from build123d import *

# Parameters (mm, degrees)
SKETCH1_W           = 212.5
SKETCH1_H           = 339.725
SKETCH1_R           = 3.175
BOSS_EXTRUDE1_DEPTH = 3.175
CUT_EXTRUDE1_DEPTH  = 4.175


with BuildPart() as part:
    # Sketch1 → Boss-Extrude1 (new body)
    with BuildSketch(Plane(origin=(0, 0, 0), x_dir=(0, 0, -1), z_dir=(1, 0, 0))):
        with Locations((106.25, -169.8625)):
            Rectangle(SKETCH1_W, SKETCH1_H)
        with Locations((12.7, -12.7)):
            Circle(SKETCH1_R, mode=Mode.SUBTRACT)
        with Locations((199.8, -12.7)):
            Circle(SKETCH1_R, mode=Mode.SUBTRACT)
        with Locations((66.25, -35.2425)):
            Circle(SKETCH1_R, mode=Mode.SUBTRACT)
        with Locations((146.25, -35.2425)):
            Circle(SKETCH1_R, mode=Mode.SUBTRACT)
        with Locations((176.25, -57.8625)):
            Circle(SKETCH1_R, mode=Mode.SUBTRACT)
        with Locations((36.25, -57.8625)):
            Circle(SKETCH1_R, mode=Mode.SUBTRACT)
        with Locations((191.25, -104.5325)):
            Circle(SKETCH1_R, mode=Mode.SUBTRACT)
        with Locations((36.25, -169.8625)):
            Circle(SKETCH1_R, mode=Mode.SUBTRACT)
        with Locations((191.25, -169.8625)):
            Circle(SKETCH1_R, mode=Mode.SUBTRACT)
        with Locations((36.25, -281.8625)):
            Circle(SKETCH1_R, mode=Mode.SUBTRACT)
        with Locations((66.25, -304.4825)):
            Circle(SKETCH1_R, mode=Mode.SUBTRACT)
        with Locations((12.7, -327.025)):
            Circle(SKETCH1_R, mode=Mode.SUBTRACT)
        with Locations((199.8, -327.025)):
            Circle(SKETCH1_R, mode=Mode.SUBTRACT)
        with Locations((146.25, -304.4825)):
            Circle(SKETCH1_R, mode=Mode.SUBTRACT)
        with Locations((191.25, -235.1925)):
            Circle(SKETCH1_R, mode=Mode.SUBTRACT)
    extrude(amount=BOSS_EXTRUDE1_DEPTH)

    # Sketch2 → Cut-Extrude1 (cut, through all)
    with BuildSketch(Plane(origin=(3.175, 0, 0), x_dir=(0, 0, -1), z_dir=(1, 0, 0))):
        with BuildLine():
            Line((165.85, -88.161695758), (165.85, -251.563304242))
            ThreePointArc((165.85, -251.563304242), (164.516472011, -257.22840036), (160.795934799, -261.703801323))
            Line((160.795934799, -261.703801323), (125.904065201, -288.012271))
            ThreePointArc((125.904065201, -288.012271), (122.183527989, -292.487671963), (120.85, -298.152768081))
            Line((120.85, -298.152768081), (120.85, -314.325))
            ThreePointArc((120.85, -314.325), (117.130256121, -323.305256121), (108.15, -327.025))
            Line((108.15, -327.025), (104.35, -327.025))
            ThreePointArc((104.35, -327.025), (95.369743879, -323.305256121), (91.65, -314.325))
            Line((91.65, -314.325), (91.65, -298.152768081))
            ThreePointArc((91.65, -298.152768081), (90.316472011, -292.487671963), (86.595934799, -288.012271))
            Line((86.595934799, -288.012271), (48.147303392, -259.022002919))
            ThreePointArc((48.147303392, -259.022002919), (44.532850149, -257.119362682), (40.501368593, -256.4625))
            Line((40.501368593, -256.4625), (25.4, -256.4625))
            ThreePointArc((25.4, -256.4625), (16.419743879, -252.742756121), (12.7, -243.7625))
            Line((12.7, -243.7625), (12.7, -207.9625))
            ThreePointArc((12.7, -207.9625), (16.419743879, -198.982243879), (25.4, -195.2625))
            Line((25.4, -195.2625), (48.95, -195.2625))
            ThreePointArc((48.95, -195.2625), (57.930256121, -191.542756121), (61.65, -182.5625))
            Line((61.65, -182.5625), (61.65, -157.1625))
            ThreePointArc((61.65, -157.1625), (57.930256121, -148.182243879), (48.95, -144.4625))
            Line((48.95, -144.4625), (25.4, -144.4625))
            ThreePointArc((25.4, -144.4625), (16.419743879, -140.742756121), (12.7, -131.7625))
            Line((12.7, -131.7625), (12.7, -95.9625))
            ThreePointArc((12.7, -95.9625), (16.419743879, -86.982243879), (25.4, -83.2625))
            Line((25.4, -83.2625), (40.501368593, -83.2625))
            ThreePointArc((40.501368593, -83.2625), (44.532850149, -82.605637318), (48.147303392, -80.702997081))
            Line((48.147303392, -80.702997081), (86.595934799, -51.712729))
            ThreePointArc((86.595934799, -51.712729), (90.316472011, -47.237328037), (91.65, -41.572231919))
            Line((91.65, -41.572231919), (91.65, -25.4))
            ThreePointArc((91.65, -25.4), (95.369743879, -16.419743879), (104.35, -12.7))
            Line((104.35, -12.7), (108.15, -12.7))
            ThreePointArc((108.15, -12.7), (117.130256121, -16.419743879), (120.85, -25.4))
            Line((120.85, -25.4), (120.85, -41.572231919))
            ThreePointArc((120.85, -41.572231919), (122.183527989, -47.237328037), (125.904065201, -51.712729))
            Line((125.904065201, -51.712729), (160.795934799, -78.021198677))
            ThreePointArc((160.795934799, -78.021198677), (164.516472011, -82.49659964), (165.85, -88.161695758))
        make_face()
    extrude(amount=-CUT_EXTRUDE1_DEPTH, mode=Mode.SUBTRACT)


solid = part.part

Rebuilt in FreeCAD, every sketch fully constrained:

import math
import FreeCAD as App
import Part
import Sketcher
from FreeCAD import Vector
Q = App.Units.Quantity

doc = App.newDocument("Part")
body = doc.addObject("PartDesign::Body", "Body")

# Sketch on YZ plane
sketch1 = doc.addObject("Sketcher::SketchObject", "Sketch")
body.addObject(sketch1)
sketch1.AttachmentSupport = (doc.YZ_Plane, [""])
sketch1.MapMode = "FlatFace"
sketch1.addGeometry(Part.LineSegment(Vector(0, 0, 0), Vector(-339.7, 0, 0)), False)
sketch1.addGeometry(Part.LineSegment(Vector(-339.7, 0, 0), Vector(-339.7, -212.5, 0)), False)
sketch1.addGeometry(Part.LineSegment(Vector(-339.7, -212.5, 0), Vector(0, -212.5, 0)), False)
sketch1.addGeometry(Part.LineSegment(Vector(0, -212.5, 0), Vector(0, 0, 0)), False)
sketch1.addGeometry(Part.Circle(Vector(-327, -12.7, 0), Vector(0, 0, 1), 3.2), False)
sketch1.addGeometry(Part.Circle(Vector(-281.9, -36.2, 0), Vector(0, 0, 1), 3.2), False)
sketch1.addGeometry(Part.Circle(Vector(-304.5, -66.2, 0), Vector(0, 0, 1), 3.2), False)
sketch1.addGeometry(Part.Circle(Vector(-169.9, -36.2, 0), Vector(0, 0, 1), 3.2), False)
sketch1.addGeometry(Part.Circle(Vector(-304.5, -146.2, 0), Vector(0, 0, 1), 3.2), False)
sketch1.addGeometry(Part.Circle(Vector(-327, -199.8, 0), Vector(0, 0, 1), 3.2), False)
sketch1.addGeometry(Part.Circle(Vector(-235.2, -191.2, 0), Vector(0, 0, 1), 3.2), False)
sketch1.addGeometry(Part.Circle(Vector(-169.9, -191.2, 0), Vector(0, 0, 1), 3.2), False)
sketch1.addGeometry(Part.Circle(Vector(-57.9, -36.2, 0), Vector(0, 0, 1), 3.2), False)
sketch1.addGeometry(Part.Circle(Vector(-12.7, -12.7, 0), Vector(0, 0, 1), 3.2), False)
sketch1.addGeometry(Part.Circle(Vector(-35.2, -66.2, 0), Vector(0, 0, 1), 3.2), False)
sketch1.addGeometry(Part.Circle(Vector(-104.5, -191.2, 0), Vector(0, 0, 1), 3.2), False)
sketch1.addGeometry(Part.Circle(Vector(-35.2, -146.2, 0), Vector(0, 0, 1), 3.2), False)
sketch1.addGeometry(Part.Circle(Vector(-57.9, -176.2, 0), Vector(0, 0, 1), 3.2), False)
sketch1.addGeometry(Part.Circle(Vector(-12.7, -199.8, 0), Vector(0, 0, 1), 3.2), False)
sketch1.addConstraint(Sketcher.Constraint("Coincident", 0, 2, 1, 1))
sketch1.addConstraint(Sketcher.Constraint("Coincident", 1, 2, 2, 1))
sketch1.addConstraint(Sketcher.Constraint("Coincident", 2, 2, 3, 1))
sketch1.addConstraint(Sketcher.Constraint("Coincident", 3, 2, 0, 1))
sketch1.addConstraint(Sketcher.Constraint("Horizontal", 0))
sketch1.addConstraint(Sketcher.Constraint("Vertical", 1))
sketch1.addConstraint(Sketcher.Constraint("Horizontal", 2))
sketch1.addConstraint(Sketcher.Constraint("Vertical", 3))
sketch1.addConstraint(Sketcher.Constraint("Coincident", 3, 2, -1, 1))
sketch1.addConstraint(Sketcher.Constraint("Equal", 4, 5))
sketch1.addConstraint(Sketcher.Constraint("Equal", 5, 6))
sketch1.addConstraint(Sketcher.Constraint("Equal", 6, 7))
sketch1.addConstraint(Sketcher.Constraint("Equal", 7, 8))
sketch1.addConstraint(Sketcher.Constraint("Equal", 8, 9))
sketch1.addConstraint(Sketcher.Constraint("Equal", 9, 10))
sketch1.addConstraint(Sketcher.Constraint("Equal", 10, 11))
sketch1.addConstraint(Sketcher.Constraint("Equal", 11, 12))
sketch1.addConstraint(Sketcher.Constraint("Equal", 12, 13))
sketch1.addConstraint(Sketcher.Constraint("Equal", 13, 14))
sketch1.addConstraint(Sketcher.Constraint("Equal", 14, 15))
sketch1.addConstraint(Sketcher.Constraint("Equal", 15, 16))
sketch1.addConstraint(Sketcher.Constraint("Equal", 16, 17))
sketch1.addConstraint(Sketcher.Constraint("Equal", 17, 18))
sketch1.addConstraint(Sketcher.Constraint("Horizontal", 5, 3, 7, 3))
sketch1.addConstraint(Sketcher.Constraint("Horizontal", 10, 3, 11, 3))
sketch1.addConstraint(Sketcher.Constraint("Horizontal", 7, 3, 12, 3))
sketch1.addConstraint(Sketcher.Constraint("Horizontal", 4, 3, 13, 3))
sketch1.addConstraint(Sketcher.Constraint("Horizontal", 6, 3, 14, 3))
sketch1.addConstraint(Sketcher.Constraint("Horizontal", 11, 3, 15, 3))
sketch1.addConstraint(Sketcher.Constraint("Horizontal", 8, 3, 16, 3))
sketch1.addConstraint(Sketcher.Constraint("Horizontal", 9, 3, 18, 3))
sketch1.addConstraint(Sketcher.Constraint("Vertical", 6, 3, 8, 3))
sketch1.addConstraint(Sketcher.Constraint("Vertical", 4, 3, 9, 3))
sketch1.addConstraint(Sketcher.Constraint("Vertical", 7, 3, 11, 3))
sketch1.addConstraint(Sketcher.Constraint("Vertical", 14, 3, 16, 3))
sketch1.addConstraint(Sketcher.Constraint("Vertical", 12, 3, 17, 3))
sketch1.addConstraint(Sketcher.Constraint("Vertical", 13, 3, 18, 3))
sketch1.addConstraint(Sketcher.Constraint("Diameter", 4, Q("0.25 in")))
sketch1.addConstraint(Sketcher.Constraint("DistanceY", 4, 3, -1, 1, Q("0.5 in")))
sketch1.addConstraint(Sketcher.Constraint("DistanceX", 13, 3, -1, 1, Q("0.5 in")))
sketch1.addConstraint(Sketcher.Constraint("DistanceX", 6, 3, 7, 3, Q("5.3 in")))
sketch1.addConstraint(Sketcher.Constraint("DistanceX", 7, 3, 14, 3, Q("5.3 in")))
sketch1.addConstraint(Sketcher.Constraint("DistanceX", 0, 2, 4, 3, Q("0.5 in")))
sketch1.addConstraint(Sketcher.Constraint("DistanceY", 1, 2, 9, 3, Q("0.5 in")))
sketch1.addConstraint(Sketcher.Constraint("DistanceX", 0, 2, 0, 1, Q("13.375 in")))
sketch1.addConstraint(Sketcher.Constraint("DistanceX", 7, 3, -1, 1, Q("6.6875 in")))
sketch1.addConstraint(Sketcher.Constraint("DistanceY", 1, 2, 1, 1, Q("212.5 mm")))
sketch1.addConstraint(Sketcher.Constraint("DistanceX", 5, 3, -1, 1, Q("281.8625 mm")))
sketch1.addConstraint(Sketcher.Constraint("DistanceY", 5, 3, -1, 1, Q("36.25 mm")))
sketch1.addConstraint(Sketcher.Constraint("DistanceY", 6, 3, -1, 1, Q("66.25 mm")))
sketch1.addConstraint(Sketcher.Constraint("DistanceY", 8, 3, -1, 1, Q("146.25 mm")))
sketch1.addConstraint(Sketcher.Constraint("DistanceX", 10, 3, -1, 1, Q("235.1925 mm")))
sketch1.addConstraint(Sketcher.Constraint("DistanceY", 10, 3, -1, 1, Q("191.25 mm")))
sketch1.addConstraint(Sketcher.Constraint("DistanceX", 12, 3, -1, 1, Q("57.8625 mm")))
sketch1.addConstraint(Sketcher.Constraint("DistanceX", 15, 3, -1, 1, Q("104.5325 mm")))
sketch1.addConstraint(Sketcher.Constraint("DistanceY", 17, 3, -1, 1, Q("176.25 mm")))
pad1 = doc.addObject("PartDesign::Pad", "Pad")
body.addObject(pad1)
pad1.Profile = sketch1
pad1.Length = Q("0.125 in")

# Sketch on YZ plane
sketch2 = doc.addObject("Sketcher::SketchObject", "Sketch001")
body.addObject(sketch2)
sketch2.AttachmentSupport = (doc.YZ_Plane, [""])
sketch2.MapMode = "FlatFace"
sketch2.AttachmentOffset = App.Placement(Vector(0, 0, 0.125 * 25.4), App.Rotation())
sketch2.addGeometry(Part.LineSegment(Vector(-251.6, -165.8, 0), Vector(-88.2, -165.8, 0)), False)
sketch2.addGeometry(Part.ArcOfCircle(Part.Circle(Vector(-88.2, -153.2, 0), Vector(0, 0, 1), 12.7), math.radians(-90), math.radians(-37)), False)
sketch2.addGeometry(Part.LineSegment(Vector(-78, -160.8, 0), Vector(-51.7, -125.9, 0)), False)
sketch2.addGeometry(Part.ArcOfCircle(Part.Circle(Vector(-41.6, -133.5, 0), Vector(0, 0, 1), 12.7), math.radians(90), math.radians(143)), False)
sketch2.addGeometry(Part.LineSegment(Vector(-41.6, -120.8, 0), Vector(-25.4, -120.8, 0)), False)
sketch2.addGeometry(Part.ArcOfCircle(Part.Circle(Vector(-25.4, -108.2, 0), Vector(0, 0, 1), 12.7), math.radians(-90), math.radians(0)), False)
sketch2.addGeometry(Part.LineSegment(Vector(-12.7, -108.2, 0), Vector(-12.7, -104.3, 0)), False)
sketch2.addGeometry(Part.ArcOfCircle(Part.Circle(Vector(-25.4, -104.3, 0), Vector(0, 0, 1), 12.7), math.radians(0), math.radians(90)), False)
sketch2.addGeometry(Part.LineSegment(Vector(-25.4, -91.7, 0), Vector(-41.6, -91.7, 0)), False)
sketch2.addGeometry(Part.ArcOfCircle(Part.Circle(Vector(-41.6, -79, 0), Vector(0, 0, 1), 12.7), math.radians(-143), math.radians(-90)), False)
sketch2.addGeometry(Part.LineSegment(Vector(-51.7, -86.6, 0), Vector(-80.7, -48.1, 0)), False)
sketch2.addGeometry(Part.ArcOfCircle(Part.Circle(Vector(-70.6, -40.5, 0), Vector(0, 0, 1), 12.7), math.radians(-180), math.radians(-143)), False)
sketch2.addGeometry(Part.LineSegment(Vector(-83.3, -40.5, 0), Vector(-83.3, -25.4, 0)), False)
sketch2.addGeometry(Part.ArcOfCircle(Part.Circle(Vector(-96, -25.4, 0), Vector(0, 0, 1), 12.7), math.radians(0), math.radians(90)), False)
sketch2.addGeometry(Part.LineSegment(Vector(-96, -12.7, 0), Vector(-131.8, -12.7, 0)), False)
sketch2.addGeometry(Part.ArcOfCircle(Part.Circle(Vector(-131.8, -25.4, 0), Vector(0, 0, 1), 12.7), math.radians(90), math.radians(180)), False)
sketch2.addGeometry(Part.LineSegment(Vector(-144.5, -25.4, 0), Vector(-144.5, -49, 0)), False)
sketch2.addGeometry(Part.ArcOfCircle(Part.Circle(Vector(-157.2, -49, 0), Vector(0, 0, 1), 12.7), math.radians(-90), math.radians(0)), False)
sketch2.addGeometry(Part.LineSegment(Vector(-157.2, -61.6, 0), Vector(-182.6, -61.6, 0)), False)
sketch2.addGeometry(Part.ArcOfCircle(Part.Circle(Vector(-182.6, -49, 0), Vector(0, 0, 1), 12.7), math.radians(180), math.radians(270)), False)
sketch2.addGeometry(Part.LineSegment(Vector(-195.3, -49, 0), Vector(-195.3, -25.4, 0)), False)
sketch2.addGeometry(Part.ArcOfCircle(Part.Circle(Vector(-208, -25.4, 0), Vector(0, 0, 1), 12.7), math.radians(0), math.radians(90)), False)
sketch2.addGeometry(Part.LineSegment(Vector(-208, -12.7, 0), Vector(-243.8, -12.7, 0)), False)
sketch2.addGeometry(Part.ArcOfCircle(Part.Circle(Vector(-243.8, -25.4, 0), Vector(0, 0, 1), 12.7), math.radians(90), math.radians(180)), False)
sketch2.addGeometry(Part.LineSegment(Vector(-256.5, -25.4, 0), Vector(-256.5, -40.5, 0)), False)
sketch2.addGeometry(Part.ArcOfCircle(Part.Circle(Vector(-269.2, -40.5, 0), Vector(0, 0, 1), 12.7), math.radians(-37), math.radians(0)), False)
sketch2.addGeometry(Part.LineSegment(Vector(-259, -48.1, 0), Vector(-288, -86.6, 0)), False)
sketch2.addGeometry(Part.ArcOfCircle(Part.Circle(Vector(-298.2, -79, 0), Vector(0, 0, 1), 12.7), math.radians(-90), math.radians(-37)), False)
sketch2.addGeometry(Part.LineSegment(Vector(-298.2, -91.7, 0), Vector(-314.3, -91.7, 0)), False)
sketch2.addGeometry(Part.ArcOfCircle(Part.Circle(Vector(-314.3, -104.3, 0), Vector(0, 0, 1), 12.7), math.radians(90), math.radians(180)), False)
sketch2.addGeometry(Part.LineSegment(Vector(-327, -104.3, 0), Vector(-327, -108.2, 0)), False)
sketch2.addGeometry(Part.ArcOfCircle(Part.Circle(Vector(-314.3, -108.2, 0), Vector(0, 0, 1), 12.7), math.radians(180), math.radians(270)), False)
sketch2.addGeometry(Part.LineSegment(Vector(-314.3, -120.8, 0), Vector(-298.2, -120.8, 0)), False)
sketch2.addGeometry(Part.ArcOfCircle(Part.Circle(Vector(-298.2, -133.5, 0), Vector(0, 0, 1), 12.7), math.radians(37), math.radians(90)), False)
sketch2.addGeometry(Part.LineSegment(Vector(-288, -125.9, 0), Vector(-261.7, -160.8, 0)), False)
sketch2.addGeometry(Part.ArcOfCircle(Part.Circle(Vector(-251.6, -153.2, 0), Vector(0, 0, 1), 12.7), math.radians(-143), math.radians(-90)), False)
sketch2.addConstraint(Sketcher.Constraint("Tangent", 0, 2, 1, 1))
sketch2.addConstraint(Sketcher.Constraint("Tangent", 1, 2, 2, 1))
sketch2.addConstraint(Sketcher.Constraint("Tangent", 2, 2, 3, 2))
sketch2.addConstraint(Sketcher.Constraint("Tangent", 3, 1, 4, 1))
sketch2.addConstraint(Sketcher.Constraint("Tangent", 4, 2, 5, 1))
sketch2.addConstraint(Sketcher.Constraint("Tangent", 5, 2, 6, 1))
sketch2.addConstraint(Sketcher.Constraint("Tangent", 6, 2, 7, 1))
sketch2.addConstraint(Sketcher.Constraint("Tangent", 7, 2, 8, 1))
sketch2.addConstraint(Sketcher.Constraint("Tangent", 8, 2, 9, 2))
sketch2.addConstraint(Sketcher.Constraint("Tangent", 9, 1, 10, 1))
sketch2.addConstraint(Sketcher.Constraint("Tangent", 10, 2, 11, 2))
sketch2.addConstraint(Sketcher.Constraint("Tangent", 11, 1, 12, 1))
sketch2.addConstraint(Sketcher.Constraint("Tangent", 12, 2, 13, 1))
sketch2.addConstraint(Sketcher.Constraint("Tangent", 13, 2, 14, 1))
sketch2.addConstraint(Sketcher.Constraint("Tangent", 14, 2, 15, 1))
sketch2.addConstraint(Sketcher.Constraint("Tangent", 15, 2, 16, 1))
sketch2.addConstraint(Sketcher.Constraint("Tangent", 16, 2, 17, 2))
sketch2.addConstraint(Sketcher.Constraint("Tangent", 17, 1, 18, 1))
sketch2.addConstraint(Sketcher.Constraint("Tangent", 18, 2, 19, 2))
sketch2.addConstraint(Sketcher.Constraint("Tangent", 19, 1, 20, 1))
sketch2.addConstraint(Sketcher.Constraint("Tangent", 20, 2, 21, 1))
sketch2.addConstraint(Sketcher.Constraint("Tangent", 21, 2, 22, 1))
sketch2.addConstraint(Sketcher.Constraint("Tangent", 22, 2, 23, 1))
sketch2.addConstraint(Sketcher.Constraint("Tangent", 23, 2, 24, 1))
sketch2.addConstraint(Sketcher.Constraint("Tangent", 24, 2, 25, 2))
sketch2.addConstraint(Sketcher.Constraint("Tangent", 25, 1, 26, 1))
sketch2.addConstraint(Sketcher.Constraint("Tangent", 26, 2, 27, 2))
sketch2.addConstraint(Sketcher.Constraint("Tangent", 27, 1, 28, 1))
sketch2.addConstraint(Sketcher.Constraint("Tangent", 28, 2, 29, 1))
sketch2.addConstraint(Sketcher.Constraint("Tangent", 29, 2, 30, 1))
sketch2.addConstraint(Sketcher.Constraint("Tangent", 30, 2, 31, 1))
sketch2.addConstraint(Sketcher.Constraint("Tangent", 31, 2, 32, 1))
sketch2.addConstraint(Sketcher.Constraint("Tangent", 32, 2, 33, 2))
sketch2.addConstraint(Sketcher.Constraint("Tangent", 33, 1, 34, 1))
sketch2.addConstraint(Sketcher.Constraint("Tangent", 34, 2, 35, 1))
sketch2.addConstraint(Sketcher.Constraint("Tangent", 35, 2, 0, 1))
sketch2.addConstraint(Sketcher.Constraint("Horizontal", 0))
sketch2.addConstraint(Sketcher.Constraint("Horizontal", 4))
sketch2.addConstraint(Sketcher.Constraint("Vertical", 6))
sketch2.addConstraint(Sketcher.Constraint("Horizontal", 8))
sketch2.addConstraint(Sketcher.Constraint("Vertical", 12))
sketch2.addConstraint(Sketcher.Constraint("Horizontal", 14))
sketch2.addConstraint(Sketcher.Constraint("Vertical", 16))
sketch2.addConstraint(Sketcher.Constraint("Horizontal", 18))
sketch2.addConstraint(Sketcher.Constraint("Vertical", 20))
sketch2.addConstraint(Sketcher.Constraint("Horizontal", 22))
sketch2.addConstraint(Sketcher.Constraint("Vertical", 24))
sketch2.addConstraint(Sketcher.Constraint("Horizontal", 28))
sketch2.addConstraint(Sketcher.Constraint("Vertical", 30))
sketch2.addConstraint(Sketcher.Constraint("Horizontal", 32))
sketch2.addConstraint(Sketcher.Constraint("Equal", 1, 3))
sketch2.addConstraint(Sketcher.Constraint("Equal", 3, 5))
sketch2.addConstraint(Sketcher.Constraint("Equal", 5, 7))
sketch2.addConstraint(Sketcher.Constraint("Equal", 7, 9))
sketch2.addConstraint(Sketcher.Constraint("Equal", 9, 11))
sketch2.addConstraint(Sketcher.Constraint("Equal", 11, 13))
sketch2.addConstraint(Sketcher.Constraint("Equal", 13, 15))
sketch2.addConstraint(Sketcher.Constraint("Equal", 15, 17))
sketch2.addConstraint(Sketcher.Constraint("Equal", 17, 19))
sketch2.addConstraint(Sketcher.Constraint("Equal", 19, 21))
sketch2.addConstraint(Sketcher.Constraint("Equal", 21, 23))
sketch2.addConstraint(Sketcher.Constraint("Equal", 23, 25))
sketch2.addConstraint(Sketcher.Constraint("Equal", 25, 27))
sketch2.addConstraint(Sketcher.Constraint("Equal", 27, 29))
sketch2.addConstraint(Sketcher.Constraint("Equal", 29, 31))
sketch2.addConstraint(Sketcher.Constraint("Equal", 31, 33))
sketch2.addConstraint(Sketcher.Constraint("Equal", 33, 35))
sketch2.addConstraint(Sketcher.Constraint("Parallel", 2, 26))
sketch2.addConstraint(Sketcher.Constraint("Parallel", 10, 34))
sketch2.addConstraint(Sketcher.Constraint("Horizontal", 15, 3, 21, 3))
sketch2.addConstraint(Sketcher.Constraint("Horizontal", 11, 3, 25, 3))
sketch2.addConstraint(Sketcher.Constraint("Horizontal", 9, 3, 27, 3))
sketch2.addConstraint(Sketcher.Constraint("Horizontal", 5, 3, 31, 3))
sketch2.addConstraint(Sketcher.Constraint("Horizontal", 10, 2, 25, 1))
sketch2.addConstraint(Sketcher.Constraint("Vertical", 3, 3, 9, 3))
sketch2.addConstraint(Sketcher.Constraint("Vertical", 27, 3, 33, 3))
sketch2.addConstraint(Sketcher.Constraint("Equal", 14, 22))
sketch2.addConstraint(Sketcher.Constraint("Equal", 8, 28))
sketch2.addConstraint(Sketcher.Constraint("Radius", 1, Q("0.5 in")))
sketch2.addConstraint(Sketcher.Constraint("DistanceX", 18, 2, 18, 1, Q("1 in")))
sketch2.addConstraint(Sketcher.Constraint("DistanceX", 5, 3, -1, 1, Q("1 in")))
sketch2.addConstraint(Sketcher.Constraint("DistanceY", 13, 3, -1, 1, Q("1 in")))
sketch2.addConstraint(Sketcher.Constraint("DistanceX", 15, 3, -1, 1, Q("5.1875 in")))
sketch2.addConstraint(Sketcher.Constraint("DistanceX", 14, 2, 14, 1, Q("35.8 mm")))
sketch2.addConstraint(Sketcher.Constraint("DistanceY", 6, 1, 6, 2, Q("3.8 mm")))
sketch2.addConstraint(Sketcher.Constraint("DistanceY", 16, 2, 16, 1, Q("23.55 mm")))
sketch2.addConstraint(Sketcher.Constraint("DistanceX", 0, 1, 0, 2, Q("163.401608 mm")))
sketch2.addConstraint(Sketcher.Constraint("DistanceX", 4, 1, 4, 2, Q("16.172232 mm")))
sketch2.addConstraint(Sketcher.Constraint("DistanceY", 12, 1, 12, 2, Q("15.101369 mm")))
sketch2.addConstraint(Sketcher.Constraint("DistanceY", 1, 3, -1, 1, Q("153.15 mm")))
pocket1 = doc.addObject("PartDesign::Pocket", "Pocket")
body.addObject(pocket1)
pocket1.Profile = sketch2
pocket1.Type = "ThroughAll"

doc.recompute()
